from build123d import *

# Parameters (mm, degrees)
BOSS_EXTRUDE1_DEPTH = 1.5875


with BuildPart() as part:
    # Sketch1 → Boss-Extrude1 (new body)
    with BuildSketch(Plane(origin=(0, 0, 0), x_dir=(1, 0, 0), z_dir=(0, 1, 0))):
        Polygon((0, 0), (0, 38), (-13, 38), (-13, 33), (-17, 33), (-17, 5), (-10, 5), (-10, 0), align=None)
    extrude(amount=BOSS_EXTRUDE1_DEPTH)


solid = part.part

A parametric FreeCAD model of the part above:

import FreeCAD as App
import Part
import Sketcher

V = App.Vector
Q = App.Units.Quantity


def add_polygon(sketch, points):
    """Adds a closed chain of lines whose ends are joined by coincident constraints."""
    first, n = sketch.GeometryCount, len(points)
    for a, b in zip(points, points[1:] + points[:1]):
        sketch.addGeometry(Part.LineSegment(App.Vector(*a, 0), App.Vector(*b, 0)), False)
    for i in range(n):
        sketch.addConstraint(Sketcher.Constraint("Coincident", first + i, 2, first + (i + 1) % n, 1))

doc = App.newDocument("Part")
params = doc.addObject("Spreadsheet::Sheet", "Params")
for row, (alias, value) in enumerate([
    ("sketch1_width", "13 mm"),
    ("sketch1_width2", "4 mm"),
    ("sketch1_width3", "7 mm"),
    ("sketch1_height", "38 mm"),
    ("sketch1_height2", "5 mm"),
    ("pad1_length", "1.5875 mm"),
], start=1):
    params.set(f"A{row}", alias)
    params.set(f"B{row}", "=" + value)
    params.setAlias(f"B{row}", alias)

body = doc.addObject("PartDesign::Body", "Body")

# Sketch on XZ plane
sketch1 = body.newObject("Sketcher::SketchObject", "Sketch")
sketch1.AttachmentSupport = (doc.getObject("XZ_Plane"), [""])
sketch1.MapMode = "FlatFace"
add_polygon(sketch1, [(0, 0), (0, -38), (-13, -38), (-13, -33), (-17, -33), (-17, -5), (-10, -5), (-10, 0)])  # lines 0-7
sketch1.addConstraint([
    Sketcher.Constraint("Vertical", 0),
    Sketcher.Constraint("Horizontal", 1),
    Sketcher.Constraint("Vertical", 2),
    Sketcher.Constraint("Horizontal", 3),
    Sketcher.Constraint("Vertical", 4),
    Sketcher.Constraint("Horizontal", 5),
    Sketcher.Constraint("Vertical", 6),
    Sketcher.Constraint("Horizontal", 7),
    Sketcher.Constraint("Coincident", 7, 2, -1, 1),
    Sketcher.Constraint("Equal", 2, 6),
    Sketcher.Constraint("DistanceX", 1, 2, 1, 1, Q("13 mm")),
    Sketcher.Constraint("DistanceX", 3, 2, 3, 1, Q("4 mm")),
    Sketcher.Constraint("DistanceX", 5, 1, 5, 2, Q("7 mm")),
    Sketcher.Constraint("DistanceY", 0, 2, 0, 1, Q("38 mm")),
    Sketcher.Constraint("DistanceY", 2, 1, 2, 2, Q("5 mm")),
])
sketch1.setExpression("Constraints[18]", "Params.sketch1_width")
sketch1.setExpression("Constraints[19]", "Params.sketch1_width2")
sketch1.setExpression("Constraints[20]", "Params.sketch1_width3")
sketch1.setExpression("Constraints[21]", "Params.sketch1_height")
sketch1.setExpression("Constraints[22]", "Params.sketch1_height2")
pad1 = body.newObject("PartDesign::Pad", "Pad")
pad1.Profile = sketch1
pad1.setExpression("Length", "Params.pad1_length")
pad1.Reversed = True

doc.recompute()
